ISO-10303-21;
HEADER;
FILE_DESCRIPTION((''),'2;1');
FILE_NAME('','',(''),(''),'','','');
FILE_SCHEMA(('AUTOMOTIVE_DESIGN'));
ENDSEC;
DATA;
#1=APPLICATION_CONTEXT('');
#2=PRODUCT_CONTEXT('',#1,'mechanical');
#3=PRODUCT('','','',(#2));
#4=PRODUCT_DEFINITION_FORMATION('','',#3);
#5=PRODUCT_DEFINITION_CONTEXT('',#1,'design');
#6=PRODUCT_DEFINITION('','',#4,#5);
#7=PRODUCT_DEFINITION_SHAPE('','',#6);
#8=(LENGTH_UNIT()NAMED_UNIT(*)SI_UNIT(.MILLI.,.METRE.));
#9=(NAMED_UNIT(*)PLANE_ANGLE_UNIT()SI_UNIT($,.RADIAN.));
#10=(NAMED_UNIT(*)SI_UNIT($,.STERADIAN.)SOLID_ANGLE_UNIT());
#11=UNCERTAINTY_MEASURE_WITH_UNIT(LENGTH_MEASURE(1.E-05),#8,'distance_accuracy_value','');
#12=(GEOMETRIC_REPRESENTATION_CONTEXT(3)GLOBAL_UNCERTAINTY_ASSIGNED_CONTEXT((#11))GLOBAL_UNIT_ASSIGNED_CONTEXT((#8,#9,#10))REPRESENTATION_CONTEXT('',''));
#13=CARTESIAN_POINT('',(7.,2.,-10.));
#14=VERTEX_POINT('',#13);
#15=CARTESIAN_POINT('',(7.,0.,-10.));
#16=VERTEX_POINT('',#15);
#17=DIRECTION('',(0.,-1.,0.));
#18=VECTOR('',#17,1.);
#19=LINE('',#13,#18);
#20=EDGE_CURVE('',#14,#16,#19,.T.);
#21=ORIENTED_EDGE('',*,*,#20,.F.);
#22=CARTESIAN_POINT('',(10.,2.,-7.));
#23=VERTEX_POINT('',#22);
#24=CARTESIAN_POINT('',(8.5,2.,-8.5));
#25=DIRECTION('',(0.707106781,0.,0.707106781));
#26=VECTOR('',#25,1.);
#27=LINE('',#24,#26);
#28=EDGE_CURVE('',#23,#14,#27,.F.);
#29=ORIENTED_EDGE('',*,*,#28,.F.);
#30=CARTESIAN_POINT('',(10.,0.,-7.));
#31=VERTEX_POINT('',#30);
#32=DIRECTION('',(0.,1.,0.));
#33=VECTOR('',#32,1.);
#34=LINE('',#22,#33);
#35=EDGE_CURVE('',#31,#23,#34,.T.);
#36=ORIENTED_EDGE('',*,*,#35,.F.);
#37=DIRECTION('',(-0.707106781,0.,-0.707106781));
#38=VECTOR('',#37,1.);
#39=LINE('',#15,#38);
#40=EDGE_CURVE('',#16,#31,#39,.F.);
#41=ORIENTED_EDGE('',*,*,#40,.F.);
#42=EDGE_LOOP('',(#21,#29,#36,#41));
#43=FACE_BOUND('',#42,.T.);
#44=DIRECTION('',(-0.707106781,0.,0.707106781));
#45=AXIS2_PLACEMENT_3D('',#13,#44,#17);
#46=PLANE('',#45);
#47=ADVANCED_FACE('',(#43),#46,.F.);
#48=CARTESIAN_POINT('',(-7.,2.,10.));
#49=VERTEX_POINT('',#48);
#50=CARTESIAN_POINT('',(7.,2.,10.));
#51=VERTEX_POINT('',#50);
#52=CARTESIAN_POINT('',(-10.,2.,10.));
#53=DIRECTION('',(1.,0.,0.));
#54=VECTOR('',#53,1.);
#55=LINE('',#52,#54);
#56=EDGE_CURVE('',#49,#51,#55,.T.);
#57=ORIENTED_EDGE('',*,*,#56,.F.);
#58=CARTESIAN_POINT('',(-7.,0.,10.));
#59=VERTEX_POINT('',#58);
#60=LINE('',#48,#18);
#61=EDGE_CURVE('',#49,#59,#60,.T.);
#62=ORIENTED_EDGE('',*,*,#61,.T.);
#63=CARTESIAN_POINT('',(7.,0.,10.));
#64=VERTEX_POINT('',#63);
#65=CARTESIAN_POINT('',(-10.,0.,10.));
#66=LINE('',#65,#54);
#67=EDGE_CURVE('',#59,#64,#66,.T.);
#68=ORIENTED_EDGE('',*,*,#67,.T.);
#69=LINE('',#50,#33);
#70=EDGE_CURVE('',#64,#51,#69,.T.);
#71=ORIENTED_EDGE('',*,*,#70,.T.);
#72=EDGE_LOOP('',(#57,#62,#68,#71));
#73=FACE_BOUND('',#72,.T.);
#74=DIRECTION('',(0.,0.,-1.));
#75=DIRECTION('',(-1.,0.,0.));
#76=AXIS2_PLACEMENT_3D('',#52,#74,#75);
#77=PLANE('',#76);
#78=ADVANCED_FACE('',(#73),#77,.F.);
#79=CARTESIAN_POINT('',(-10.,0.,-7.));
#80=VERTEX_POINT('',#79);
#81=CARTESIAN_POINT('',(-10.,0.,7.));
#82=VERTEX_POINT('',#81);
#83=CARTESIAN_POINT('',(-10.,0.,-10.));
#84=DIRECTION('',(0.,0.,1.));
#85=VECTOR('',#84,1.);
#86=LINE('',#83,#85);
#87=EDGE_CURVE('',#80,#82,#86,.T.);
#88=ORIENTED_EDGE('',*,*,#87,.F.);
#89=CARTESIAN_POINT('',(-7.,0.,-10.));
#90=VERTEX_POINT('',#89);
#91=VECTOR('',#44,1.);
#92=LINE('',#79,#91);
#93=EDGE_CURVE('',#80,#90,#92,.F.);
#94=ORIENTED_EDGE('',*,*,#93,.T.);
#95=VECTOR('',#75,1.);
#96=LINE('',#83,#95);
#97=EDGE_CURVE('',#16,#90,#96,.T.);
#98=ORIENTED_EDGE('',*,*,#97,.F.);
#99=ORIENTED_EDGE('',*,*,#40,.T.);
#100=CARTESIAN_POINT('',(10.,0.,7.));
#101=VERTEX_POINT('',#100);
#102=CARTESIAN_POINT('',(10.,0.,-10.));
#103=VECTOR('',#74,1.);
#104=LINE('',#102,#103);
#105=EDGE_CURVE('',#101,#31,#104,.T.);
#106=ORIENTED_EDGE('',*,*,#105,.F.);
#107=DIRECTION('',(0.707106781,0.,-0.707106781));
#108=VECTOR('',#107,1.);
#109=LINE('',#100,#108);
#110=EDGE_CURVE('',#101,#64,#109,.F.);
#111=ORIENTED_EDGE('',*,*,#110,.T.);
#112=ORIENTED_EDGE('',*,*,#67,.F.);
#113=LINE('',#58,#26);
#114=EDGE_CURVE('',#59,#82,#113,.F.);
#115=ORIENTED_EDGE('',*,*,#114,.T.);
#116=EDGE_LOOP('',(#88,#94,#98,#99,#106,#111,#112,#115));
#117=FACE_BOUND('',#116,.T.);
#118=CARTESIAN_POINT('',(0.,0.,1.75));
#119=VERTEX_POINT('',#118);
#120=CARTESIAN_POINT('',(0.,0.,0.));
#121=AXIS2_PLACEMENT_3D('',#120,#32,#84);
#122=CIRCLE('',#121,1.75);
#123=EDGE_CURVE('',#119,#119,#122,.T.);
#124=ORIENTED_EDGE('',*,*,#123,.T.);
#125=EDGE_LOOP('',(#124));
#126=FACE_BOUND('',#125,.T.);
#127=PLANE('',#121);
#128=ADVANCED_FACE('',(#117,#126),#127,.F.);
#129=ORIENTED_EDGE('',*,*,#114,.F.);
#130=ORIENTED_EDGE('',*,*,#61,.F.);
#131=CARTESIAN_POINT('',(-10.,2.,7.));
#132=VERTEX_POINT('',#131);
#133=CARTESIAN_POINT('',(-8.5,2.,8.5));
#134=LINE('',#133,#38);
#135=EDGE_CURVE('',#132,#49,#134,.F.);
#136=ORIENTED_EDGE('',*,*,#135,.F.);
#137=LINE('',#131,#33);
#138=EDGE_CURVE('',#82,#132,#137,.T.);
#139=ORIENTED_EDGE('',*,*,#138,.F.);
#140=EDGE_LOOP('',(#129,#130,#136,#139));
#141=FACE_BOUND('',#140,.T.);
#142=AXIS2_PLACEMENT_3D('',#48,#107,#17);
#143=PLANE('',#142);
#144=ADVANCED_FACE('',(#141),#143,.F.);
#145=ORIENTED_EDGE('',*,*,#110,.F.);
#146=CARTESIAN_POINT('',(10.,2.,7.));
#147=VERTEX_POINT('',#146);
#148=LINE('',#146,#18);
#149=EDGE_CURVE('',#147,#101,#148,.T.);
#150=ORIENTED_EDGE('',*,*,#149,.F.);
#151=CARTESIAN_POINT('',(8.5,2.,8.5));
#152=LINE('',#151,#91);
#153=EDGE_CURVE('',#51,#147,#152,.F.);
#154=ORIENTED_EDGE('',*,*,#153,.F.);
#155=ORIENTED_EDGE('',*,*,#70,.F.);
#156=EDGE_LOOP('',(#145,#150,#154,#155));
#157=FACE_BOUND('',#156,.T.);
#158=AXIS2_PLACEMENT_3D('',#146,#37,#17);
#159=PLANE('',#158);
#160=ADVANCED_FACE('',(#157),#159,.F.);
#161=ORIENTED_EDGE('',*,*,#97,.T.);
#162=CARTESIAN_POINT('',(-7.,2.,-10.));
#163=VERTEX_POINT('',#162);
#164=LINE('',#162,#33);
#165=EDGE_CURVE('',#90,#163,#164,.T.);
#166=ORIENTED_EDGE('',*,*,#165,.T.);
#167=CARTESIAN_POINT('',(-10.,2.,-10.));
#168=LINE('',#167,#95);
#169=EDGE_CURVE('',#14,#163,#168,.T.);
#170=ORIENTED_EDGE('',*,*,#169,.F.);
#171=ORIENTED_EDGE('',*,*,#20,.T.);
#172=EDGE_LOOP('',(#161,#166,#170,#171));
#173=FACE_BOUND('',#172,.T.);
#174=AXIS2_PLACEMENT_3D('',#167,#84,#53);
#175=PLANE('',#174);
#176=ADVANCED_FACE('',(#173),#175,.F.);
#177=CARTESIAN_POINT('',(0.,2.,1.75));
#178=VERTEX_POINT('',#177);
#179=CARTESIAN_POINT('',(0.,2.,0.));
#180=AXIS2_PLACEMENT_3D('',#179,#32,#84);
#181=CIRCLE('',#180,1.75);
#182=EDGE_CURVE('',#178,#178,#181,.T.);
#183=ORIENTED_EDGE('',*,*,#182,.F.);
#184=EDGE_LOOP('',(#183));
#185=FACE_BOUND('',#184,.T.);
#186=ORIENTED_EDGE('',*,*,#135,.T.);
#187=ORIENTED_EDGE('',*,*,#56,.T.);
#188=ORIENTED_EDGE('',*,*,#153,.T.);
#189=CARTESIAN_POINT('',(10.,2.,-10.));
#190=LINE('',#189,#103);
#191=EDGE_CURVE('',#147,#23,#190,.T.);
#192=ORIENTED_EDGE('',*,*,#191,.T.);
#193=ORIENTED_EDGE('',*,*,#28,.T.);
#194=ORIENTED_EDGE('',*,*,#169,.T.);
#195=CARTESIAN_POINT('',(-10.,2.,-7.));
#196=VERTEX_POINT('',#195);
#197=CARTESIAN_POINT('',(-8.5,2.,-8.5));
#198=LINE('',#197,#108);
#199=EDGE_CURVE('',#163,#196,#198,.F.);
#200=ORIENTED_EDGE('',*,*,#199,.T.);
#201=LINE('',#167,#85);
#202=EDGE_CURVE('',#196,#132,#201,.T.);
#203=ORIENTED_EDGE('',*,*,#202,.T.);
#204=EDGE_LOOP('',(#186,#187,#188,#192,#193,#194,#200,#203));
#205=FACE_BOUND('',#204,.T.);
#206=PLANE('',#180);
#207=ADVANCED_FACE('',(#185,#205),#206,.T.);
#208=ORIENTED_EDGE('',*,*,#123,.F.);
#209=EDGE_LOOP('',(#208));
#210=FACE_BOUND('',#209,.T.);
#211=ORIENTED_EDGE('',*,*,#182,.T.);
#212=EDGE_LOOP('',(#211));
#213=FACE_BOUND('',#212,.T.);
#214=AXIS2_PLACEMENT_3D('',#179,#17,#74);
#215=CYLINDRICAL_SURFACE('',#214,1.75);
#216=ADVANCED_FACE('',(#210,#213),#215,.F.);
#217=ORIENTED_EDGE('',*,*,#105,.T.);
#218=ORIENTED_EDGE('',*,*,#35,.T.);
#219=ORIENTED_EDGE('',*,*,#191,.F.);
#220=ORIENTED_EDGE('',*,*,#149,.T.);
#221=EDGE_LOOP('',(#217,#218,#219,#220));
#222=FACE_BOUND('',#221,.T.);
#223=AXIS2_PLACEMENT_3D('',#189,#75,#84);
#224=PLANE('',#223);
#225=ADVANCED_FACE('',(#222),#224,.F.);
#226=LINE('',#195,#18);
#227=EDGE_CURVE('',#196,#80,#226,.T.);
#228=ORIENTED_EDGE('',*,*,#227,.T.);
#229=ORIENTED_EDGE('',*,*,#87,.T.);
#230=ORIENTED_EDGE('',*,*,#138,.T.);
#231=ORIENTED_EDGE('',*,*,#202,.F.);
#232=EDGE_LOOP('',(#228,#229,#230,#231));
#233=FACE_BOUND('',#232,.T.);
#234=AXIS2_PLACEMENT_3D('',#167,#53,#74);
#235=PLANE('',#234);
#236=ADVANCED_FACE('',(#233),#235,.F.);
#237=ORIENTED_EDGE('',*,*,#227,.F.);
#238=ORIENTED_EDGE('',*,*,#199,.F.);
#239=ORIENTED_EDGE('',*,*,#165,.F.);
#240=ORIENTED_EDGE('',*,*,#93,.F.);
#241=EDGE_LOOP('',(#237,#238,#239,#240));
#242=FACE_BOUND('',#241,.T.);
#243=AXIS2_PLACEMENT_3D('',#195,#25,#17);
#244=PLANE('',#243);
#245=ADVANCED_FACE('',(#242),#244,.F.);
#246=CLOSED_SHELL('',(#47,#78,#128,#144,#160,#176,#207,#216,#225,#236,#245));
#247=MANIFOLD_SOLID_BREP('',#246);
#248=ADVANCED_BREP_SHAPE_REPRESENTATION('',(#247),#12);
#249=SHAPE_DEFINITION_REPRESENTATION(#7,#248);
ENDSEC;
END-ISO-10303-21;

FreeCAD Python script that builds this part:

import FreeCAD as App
import Part
import Sketcher
Q = App.Units.Quantity


def edges_at(feature, points):
    """Names of the edges that pass closest to the given points."""
    edges = feature.Shape.Edges
    near = lambda p: min(range(len(edges)), key=lambda i: edges[i].distToShape(Part.Vertex(*p))[0])
    return sorted({f"Edge{near(p) + 1}" for p in points})

doc = App.newDocument("Part")
body = doc.addObject("PartDesign::Body", "Body")

sketch1 = body.newObject("Sketcher::SketchObject", "Sketch")
sketch1.AttachmentSupport = (doc.getObject("XZ_Plane"), [""])
sketch1.MapMode = "FlatFace"
sketch1.addGeometry([
    Part.LineSegment(App.Vector(-10, -10, 0), App.Vector(-10, 10, 0)),
    Part.LineSegment(App.Vector(-10, 10, 0), App.Vector(10, 10, 0)),
    Part.LineSegment(App.Vector(10, 10, 0), App.Vector(10, -10, 0)),
    Part.LineSegment(App.Vector(10, -10, 0), App.Vector(-10, -10, 0)),
    Part.Circle(App.Vector(0, 0, 0), App.Vector(0, 0, 1), 1.8),
], False)
sketch1.addConstraint([
    Sketcher.Constraint("Coincident", 0, 2, 1, 1),
    Sketcher.Constraint("Coincident", 1, 2, 2, 1),
    Sketcher.Constraint("Coincident", 2, 2, 3, 1),
    Sketcher.Constraint("Coincident", 3, 2, 0, 1),
    Sketcher.Constraint("Vertical", 0),
    Sketcher.Constraint("Horizontal", 1),
    Sketcher.Constraint("Vertical", 2),
    Sketcher.Constraint("Horizontal", 3),
    Sketcher.Constraint("Coincident", 4, 3, -1, 1),
    Sketcher.Constraint("Symmetric", 0, 2, 2, 2, -1, 1),
    Sketcher.Constraint("Equal", 3, 0),
    Sketcher.Constraint("Diameter", 4, Q("3.5 mm")),
    Sketcher.Constraint("DistanceX", 1, 1, 1, 2, Q("20 mm")),
])
pad1 = body.newObject("PartDesign::Pad", "Pad")
pad1.Profile = sketch1
pad1.Length = 2
pad1.Reversed = True
doc.recompute()

chamfer = body.newObject("PartDesign::Chamfer", "Chamfer")
chamfer.Base = (pad1, edges_at(pad1, [
    (-10, 1, -10),
    (10, 1, -10),
    (10, 1, 10),
    (-10, 1, 10),
]))
chamfer.Size = 3

doc.recompute()
